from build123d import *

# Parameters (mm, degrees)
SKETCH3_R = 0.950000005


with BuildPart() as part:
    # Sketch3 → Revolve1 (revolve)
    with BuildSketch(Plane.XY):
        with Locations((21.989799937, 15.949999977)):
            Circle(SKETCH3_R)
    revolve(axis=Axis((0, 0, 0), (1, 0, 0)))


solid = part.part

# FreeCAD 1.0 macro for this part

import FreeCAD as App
import Part
import Sketcher
Q = App.Units.Quantity

doc = App.newDocument("Part")
body = doc.addObject("PartDesign::Body", "Body")

sketch1 = body.newObject("Sketcher::SketchObject", "Sketch")
sketch1.AttachmentSupport = (doc.getObject("XY_Plane"), [""])
sketch1.MapMode = "FlatFace"
sketch1.addGeometry(Part.Circle(App.Vector(22, 15.9, 0), App.Vector(0, 0, 1), 1), False)
sketch1.addConstraint([
    Sketcher.Constraint("Diameter", 0, Q("1.9 mm")),
    Sketcher.Constraint("DistanceY", -1, 1, 0, 3, Q("15.95 mm")),
    Sketcher.Constraint("DistanceX", -1, 1, 0, 3, Q("21.9898 mm")),
])
revolution = body.newObject("PartDesign::Revolution", "Revolution")
revolution.Profile = sketch1
revolution.ReferenceAxis = (sketch1, ["H_Axis"])
revolution.Angle = 360

doc.recompute()
